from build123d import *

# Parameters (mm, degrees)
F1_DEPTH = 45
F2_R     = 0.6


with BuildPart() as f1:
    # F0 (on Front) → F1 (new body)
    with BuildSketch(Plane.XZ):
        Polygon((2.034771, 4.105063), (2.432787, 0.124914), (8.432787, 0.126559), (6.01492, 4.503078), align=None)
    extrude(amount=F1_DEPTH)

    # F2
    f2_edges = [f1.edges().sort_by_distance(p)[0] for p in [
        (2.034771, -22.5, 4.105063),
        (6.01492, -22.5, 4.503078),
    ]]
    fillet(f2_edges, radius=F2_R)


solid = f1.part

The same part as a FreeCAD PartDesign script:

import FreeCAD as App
import Part
import Sketcher

V = App.Vector


def edges_at(feature, points):
    """Names of the edges that pass closest to the given points."""
    edges = feature.Shape.Edges
    near = lambda p: min(range(len(edges)), key=lambda i: edges[i].distToShape(Part.Vertex(*p))[0])
    return sorted({f"Edge{near(p) + 1}" for p in points})


def add_polygon(sketch, points):
    """Adds a closed chain of lines whose ends are joined by coincident constraints."""
    first, n = sketch.GeometryCount, len(points)
    for a, b in zip(points, points[1:] + points[:1]):
        sketch.addGeometry(Part.LineSegment(App.Vector(*a, 0), App.Vector(*b, 0)), False)
    for i in range(n):
        sketch.addConstraint(Sketcher.Constraint("Coincident", first + i, 2, first + (i + 1) % n, 1))

doc = App.newDocument("Part")
body = doc.addObject("PartDesign::Body", "Body")

sketch1 = body.newObject("Sketcher::SketchObject", "Sketch")
sketch1.AttachmentSupport = (doc.getObject("XZ_Plane"), [""])
sketch1.MapMode = "FlatFace"
add_polygon(sketch1, [(2, 4.1), (2.4, 0.1), (8.4, 0.1), (6, 4.5)])
sketch1.addConstraint([
    Sketcher.Constraint("Perpendicular", 0, 3),
    Sketcher.Constraint("Equal", 0, 3),
    Sketcher.Constraint("Distance", 0, 4.0),
    Sketcher.Constraint("Distance", 1, 6.0),
    Sketcher.Constraint("Distance", 2, 5.0),
    Sketcher.Constraint("DistanceY", -1, 1, 1, 2, 0.126559),
    Sketcher.Constraint("DistanceX", -1, 1, 2, 2, 6.01492),
    Sketcher.Constraint("DistanceY", -1, 1, 2, 2, 4.503078),
])
pad1 = body.newObject("PartDesign::Pad", "Pad")
pad1.Profile = sketch1
pad1.Length = 45
doc.recompute()

fillet = body.newObject("PartDesign::Fillet", "Fillet")
fillet.Base = (pad1, edges_at(pad1, [(2.035, -22.5, 4.105), (6.015, -22.5, 4.503)]))
fillet.Radius = 0.6

doc.recompute()
